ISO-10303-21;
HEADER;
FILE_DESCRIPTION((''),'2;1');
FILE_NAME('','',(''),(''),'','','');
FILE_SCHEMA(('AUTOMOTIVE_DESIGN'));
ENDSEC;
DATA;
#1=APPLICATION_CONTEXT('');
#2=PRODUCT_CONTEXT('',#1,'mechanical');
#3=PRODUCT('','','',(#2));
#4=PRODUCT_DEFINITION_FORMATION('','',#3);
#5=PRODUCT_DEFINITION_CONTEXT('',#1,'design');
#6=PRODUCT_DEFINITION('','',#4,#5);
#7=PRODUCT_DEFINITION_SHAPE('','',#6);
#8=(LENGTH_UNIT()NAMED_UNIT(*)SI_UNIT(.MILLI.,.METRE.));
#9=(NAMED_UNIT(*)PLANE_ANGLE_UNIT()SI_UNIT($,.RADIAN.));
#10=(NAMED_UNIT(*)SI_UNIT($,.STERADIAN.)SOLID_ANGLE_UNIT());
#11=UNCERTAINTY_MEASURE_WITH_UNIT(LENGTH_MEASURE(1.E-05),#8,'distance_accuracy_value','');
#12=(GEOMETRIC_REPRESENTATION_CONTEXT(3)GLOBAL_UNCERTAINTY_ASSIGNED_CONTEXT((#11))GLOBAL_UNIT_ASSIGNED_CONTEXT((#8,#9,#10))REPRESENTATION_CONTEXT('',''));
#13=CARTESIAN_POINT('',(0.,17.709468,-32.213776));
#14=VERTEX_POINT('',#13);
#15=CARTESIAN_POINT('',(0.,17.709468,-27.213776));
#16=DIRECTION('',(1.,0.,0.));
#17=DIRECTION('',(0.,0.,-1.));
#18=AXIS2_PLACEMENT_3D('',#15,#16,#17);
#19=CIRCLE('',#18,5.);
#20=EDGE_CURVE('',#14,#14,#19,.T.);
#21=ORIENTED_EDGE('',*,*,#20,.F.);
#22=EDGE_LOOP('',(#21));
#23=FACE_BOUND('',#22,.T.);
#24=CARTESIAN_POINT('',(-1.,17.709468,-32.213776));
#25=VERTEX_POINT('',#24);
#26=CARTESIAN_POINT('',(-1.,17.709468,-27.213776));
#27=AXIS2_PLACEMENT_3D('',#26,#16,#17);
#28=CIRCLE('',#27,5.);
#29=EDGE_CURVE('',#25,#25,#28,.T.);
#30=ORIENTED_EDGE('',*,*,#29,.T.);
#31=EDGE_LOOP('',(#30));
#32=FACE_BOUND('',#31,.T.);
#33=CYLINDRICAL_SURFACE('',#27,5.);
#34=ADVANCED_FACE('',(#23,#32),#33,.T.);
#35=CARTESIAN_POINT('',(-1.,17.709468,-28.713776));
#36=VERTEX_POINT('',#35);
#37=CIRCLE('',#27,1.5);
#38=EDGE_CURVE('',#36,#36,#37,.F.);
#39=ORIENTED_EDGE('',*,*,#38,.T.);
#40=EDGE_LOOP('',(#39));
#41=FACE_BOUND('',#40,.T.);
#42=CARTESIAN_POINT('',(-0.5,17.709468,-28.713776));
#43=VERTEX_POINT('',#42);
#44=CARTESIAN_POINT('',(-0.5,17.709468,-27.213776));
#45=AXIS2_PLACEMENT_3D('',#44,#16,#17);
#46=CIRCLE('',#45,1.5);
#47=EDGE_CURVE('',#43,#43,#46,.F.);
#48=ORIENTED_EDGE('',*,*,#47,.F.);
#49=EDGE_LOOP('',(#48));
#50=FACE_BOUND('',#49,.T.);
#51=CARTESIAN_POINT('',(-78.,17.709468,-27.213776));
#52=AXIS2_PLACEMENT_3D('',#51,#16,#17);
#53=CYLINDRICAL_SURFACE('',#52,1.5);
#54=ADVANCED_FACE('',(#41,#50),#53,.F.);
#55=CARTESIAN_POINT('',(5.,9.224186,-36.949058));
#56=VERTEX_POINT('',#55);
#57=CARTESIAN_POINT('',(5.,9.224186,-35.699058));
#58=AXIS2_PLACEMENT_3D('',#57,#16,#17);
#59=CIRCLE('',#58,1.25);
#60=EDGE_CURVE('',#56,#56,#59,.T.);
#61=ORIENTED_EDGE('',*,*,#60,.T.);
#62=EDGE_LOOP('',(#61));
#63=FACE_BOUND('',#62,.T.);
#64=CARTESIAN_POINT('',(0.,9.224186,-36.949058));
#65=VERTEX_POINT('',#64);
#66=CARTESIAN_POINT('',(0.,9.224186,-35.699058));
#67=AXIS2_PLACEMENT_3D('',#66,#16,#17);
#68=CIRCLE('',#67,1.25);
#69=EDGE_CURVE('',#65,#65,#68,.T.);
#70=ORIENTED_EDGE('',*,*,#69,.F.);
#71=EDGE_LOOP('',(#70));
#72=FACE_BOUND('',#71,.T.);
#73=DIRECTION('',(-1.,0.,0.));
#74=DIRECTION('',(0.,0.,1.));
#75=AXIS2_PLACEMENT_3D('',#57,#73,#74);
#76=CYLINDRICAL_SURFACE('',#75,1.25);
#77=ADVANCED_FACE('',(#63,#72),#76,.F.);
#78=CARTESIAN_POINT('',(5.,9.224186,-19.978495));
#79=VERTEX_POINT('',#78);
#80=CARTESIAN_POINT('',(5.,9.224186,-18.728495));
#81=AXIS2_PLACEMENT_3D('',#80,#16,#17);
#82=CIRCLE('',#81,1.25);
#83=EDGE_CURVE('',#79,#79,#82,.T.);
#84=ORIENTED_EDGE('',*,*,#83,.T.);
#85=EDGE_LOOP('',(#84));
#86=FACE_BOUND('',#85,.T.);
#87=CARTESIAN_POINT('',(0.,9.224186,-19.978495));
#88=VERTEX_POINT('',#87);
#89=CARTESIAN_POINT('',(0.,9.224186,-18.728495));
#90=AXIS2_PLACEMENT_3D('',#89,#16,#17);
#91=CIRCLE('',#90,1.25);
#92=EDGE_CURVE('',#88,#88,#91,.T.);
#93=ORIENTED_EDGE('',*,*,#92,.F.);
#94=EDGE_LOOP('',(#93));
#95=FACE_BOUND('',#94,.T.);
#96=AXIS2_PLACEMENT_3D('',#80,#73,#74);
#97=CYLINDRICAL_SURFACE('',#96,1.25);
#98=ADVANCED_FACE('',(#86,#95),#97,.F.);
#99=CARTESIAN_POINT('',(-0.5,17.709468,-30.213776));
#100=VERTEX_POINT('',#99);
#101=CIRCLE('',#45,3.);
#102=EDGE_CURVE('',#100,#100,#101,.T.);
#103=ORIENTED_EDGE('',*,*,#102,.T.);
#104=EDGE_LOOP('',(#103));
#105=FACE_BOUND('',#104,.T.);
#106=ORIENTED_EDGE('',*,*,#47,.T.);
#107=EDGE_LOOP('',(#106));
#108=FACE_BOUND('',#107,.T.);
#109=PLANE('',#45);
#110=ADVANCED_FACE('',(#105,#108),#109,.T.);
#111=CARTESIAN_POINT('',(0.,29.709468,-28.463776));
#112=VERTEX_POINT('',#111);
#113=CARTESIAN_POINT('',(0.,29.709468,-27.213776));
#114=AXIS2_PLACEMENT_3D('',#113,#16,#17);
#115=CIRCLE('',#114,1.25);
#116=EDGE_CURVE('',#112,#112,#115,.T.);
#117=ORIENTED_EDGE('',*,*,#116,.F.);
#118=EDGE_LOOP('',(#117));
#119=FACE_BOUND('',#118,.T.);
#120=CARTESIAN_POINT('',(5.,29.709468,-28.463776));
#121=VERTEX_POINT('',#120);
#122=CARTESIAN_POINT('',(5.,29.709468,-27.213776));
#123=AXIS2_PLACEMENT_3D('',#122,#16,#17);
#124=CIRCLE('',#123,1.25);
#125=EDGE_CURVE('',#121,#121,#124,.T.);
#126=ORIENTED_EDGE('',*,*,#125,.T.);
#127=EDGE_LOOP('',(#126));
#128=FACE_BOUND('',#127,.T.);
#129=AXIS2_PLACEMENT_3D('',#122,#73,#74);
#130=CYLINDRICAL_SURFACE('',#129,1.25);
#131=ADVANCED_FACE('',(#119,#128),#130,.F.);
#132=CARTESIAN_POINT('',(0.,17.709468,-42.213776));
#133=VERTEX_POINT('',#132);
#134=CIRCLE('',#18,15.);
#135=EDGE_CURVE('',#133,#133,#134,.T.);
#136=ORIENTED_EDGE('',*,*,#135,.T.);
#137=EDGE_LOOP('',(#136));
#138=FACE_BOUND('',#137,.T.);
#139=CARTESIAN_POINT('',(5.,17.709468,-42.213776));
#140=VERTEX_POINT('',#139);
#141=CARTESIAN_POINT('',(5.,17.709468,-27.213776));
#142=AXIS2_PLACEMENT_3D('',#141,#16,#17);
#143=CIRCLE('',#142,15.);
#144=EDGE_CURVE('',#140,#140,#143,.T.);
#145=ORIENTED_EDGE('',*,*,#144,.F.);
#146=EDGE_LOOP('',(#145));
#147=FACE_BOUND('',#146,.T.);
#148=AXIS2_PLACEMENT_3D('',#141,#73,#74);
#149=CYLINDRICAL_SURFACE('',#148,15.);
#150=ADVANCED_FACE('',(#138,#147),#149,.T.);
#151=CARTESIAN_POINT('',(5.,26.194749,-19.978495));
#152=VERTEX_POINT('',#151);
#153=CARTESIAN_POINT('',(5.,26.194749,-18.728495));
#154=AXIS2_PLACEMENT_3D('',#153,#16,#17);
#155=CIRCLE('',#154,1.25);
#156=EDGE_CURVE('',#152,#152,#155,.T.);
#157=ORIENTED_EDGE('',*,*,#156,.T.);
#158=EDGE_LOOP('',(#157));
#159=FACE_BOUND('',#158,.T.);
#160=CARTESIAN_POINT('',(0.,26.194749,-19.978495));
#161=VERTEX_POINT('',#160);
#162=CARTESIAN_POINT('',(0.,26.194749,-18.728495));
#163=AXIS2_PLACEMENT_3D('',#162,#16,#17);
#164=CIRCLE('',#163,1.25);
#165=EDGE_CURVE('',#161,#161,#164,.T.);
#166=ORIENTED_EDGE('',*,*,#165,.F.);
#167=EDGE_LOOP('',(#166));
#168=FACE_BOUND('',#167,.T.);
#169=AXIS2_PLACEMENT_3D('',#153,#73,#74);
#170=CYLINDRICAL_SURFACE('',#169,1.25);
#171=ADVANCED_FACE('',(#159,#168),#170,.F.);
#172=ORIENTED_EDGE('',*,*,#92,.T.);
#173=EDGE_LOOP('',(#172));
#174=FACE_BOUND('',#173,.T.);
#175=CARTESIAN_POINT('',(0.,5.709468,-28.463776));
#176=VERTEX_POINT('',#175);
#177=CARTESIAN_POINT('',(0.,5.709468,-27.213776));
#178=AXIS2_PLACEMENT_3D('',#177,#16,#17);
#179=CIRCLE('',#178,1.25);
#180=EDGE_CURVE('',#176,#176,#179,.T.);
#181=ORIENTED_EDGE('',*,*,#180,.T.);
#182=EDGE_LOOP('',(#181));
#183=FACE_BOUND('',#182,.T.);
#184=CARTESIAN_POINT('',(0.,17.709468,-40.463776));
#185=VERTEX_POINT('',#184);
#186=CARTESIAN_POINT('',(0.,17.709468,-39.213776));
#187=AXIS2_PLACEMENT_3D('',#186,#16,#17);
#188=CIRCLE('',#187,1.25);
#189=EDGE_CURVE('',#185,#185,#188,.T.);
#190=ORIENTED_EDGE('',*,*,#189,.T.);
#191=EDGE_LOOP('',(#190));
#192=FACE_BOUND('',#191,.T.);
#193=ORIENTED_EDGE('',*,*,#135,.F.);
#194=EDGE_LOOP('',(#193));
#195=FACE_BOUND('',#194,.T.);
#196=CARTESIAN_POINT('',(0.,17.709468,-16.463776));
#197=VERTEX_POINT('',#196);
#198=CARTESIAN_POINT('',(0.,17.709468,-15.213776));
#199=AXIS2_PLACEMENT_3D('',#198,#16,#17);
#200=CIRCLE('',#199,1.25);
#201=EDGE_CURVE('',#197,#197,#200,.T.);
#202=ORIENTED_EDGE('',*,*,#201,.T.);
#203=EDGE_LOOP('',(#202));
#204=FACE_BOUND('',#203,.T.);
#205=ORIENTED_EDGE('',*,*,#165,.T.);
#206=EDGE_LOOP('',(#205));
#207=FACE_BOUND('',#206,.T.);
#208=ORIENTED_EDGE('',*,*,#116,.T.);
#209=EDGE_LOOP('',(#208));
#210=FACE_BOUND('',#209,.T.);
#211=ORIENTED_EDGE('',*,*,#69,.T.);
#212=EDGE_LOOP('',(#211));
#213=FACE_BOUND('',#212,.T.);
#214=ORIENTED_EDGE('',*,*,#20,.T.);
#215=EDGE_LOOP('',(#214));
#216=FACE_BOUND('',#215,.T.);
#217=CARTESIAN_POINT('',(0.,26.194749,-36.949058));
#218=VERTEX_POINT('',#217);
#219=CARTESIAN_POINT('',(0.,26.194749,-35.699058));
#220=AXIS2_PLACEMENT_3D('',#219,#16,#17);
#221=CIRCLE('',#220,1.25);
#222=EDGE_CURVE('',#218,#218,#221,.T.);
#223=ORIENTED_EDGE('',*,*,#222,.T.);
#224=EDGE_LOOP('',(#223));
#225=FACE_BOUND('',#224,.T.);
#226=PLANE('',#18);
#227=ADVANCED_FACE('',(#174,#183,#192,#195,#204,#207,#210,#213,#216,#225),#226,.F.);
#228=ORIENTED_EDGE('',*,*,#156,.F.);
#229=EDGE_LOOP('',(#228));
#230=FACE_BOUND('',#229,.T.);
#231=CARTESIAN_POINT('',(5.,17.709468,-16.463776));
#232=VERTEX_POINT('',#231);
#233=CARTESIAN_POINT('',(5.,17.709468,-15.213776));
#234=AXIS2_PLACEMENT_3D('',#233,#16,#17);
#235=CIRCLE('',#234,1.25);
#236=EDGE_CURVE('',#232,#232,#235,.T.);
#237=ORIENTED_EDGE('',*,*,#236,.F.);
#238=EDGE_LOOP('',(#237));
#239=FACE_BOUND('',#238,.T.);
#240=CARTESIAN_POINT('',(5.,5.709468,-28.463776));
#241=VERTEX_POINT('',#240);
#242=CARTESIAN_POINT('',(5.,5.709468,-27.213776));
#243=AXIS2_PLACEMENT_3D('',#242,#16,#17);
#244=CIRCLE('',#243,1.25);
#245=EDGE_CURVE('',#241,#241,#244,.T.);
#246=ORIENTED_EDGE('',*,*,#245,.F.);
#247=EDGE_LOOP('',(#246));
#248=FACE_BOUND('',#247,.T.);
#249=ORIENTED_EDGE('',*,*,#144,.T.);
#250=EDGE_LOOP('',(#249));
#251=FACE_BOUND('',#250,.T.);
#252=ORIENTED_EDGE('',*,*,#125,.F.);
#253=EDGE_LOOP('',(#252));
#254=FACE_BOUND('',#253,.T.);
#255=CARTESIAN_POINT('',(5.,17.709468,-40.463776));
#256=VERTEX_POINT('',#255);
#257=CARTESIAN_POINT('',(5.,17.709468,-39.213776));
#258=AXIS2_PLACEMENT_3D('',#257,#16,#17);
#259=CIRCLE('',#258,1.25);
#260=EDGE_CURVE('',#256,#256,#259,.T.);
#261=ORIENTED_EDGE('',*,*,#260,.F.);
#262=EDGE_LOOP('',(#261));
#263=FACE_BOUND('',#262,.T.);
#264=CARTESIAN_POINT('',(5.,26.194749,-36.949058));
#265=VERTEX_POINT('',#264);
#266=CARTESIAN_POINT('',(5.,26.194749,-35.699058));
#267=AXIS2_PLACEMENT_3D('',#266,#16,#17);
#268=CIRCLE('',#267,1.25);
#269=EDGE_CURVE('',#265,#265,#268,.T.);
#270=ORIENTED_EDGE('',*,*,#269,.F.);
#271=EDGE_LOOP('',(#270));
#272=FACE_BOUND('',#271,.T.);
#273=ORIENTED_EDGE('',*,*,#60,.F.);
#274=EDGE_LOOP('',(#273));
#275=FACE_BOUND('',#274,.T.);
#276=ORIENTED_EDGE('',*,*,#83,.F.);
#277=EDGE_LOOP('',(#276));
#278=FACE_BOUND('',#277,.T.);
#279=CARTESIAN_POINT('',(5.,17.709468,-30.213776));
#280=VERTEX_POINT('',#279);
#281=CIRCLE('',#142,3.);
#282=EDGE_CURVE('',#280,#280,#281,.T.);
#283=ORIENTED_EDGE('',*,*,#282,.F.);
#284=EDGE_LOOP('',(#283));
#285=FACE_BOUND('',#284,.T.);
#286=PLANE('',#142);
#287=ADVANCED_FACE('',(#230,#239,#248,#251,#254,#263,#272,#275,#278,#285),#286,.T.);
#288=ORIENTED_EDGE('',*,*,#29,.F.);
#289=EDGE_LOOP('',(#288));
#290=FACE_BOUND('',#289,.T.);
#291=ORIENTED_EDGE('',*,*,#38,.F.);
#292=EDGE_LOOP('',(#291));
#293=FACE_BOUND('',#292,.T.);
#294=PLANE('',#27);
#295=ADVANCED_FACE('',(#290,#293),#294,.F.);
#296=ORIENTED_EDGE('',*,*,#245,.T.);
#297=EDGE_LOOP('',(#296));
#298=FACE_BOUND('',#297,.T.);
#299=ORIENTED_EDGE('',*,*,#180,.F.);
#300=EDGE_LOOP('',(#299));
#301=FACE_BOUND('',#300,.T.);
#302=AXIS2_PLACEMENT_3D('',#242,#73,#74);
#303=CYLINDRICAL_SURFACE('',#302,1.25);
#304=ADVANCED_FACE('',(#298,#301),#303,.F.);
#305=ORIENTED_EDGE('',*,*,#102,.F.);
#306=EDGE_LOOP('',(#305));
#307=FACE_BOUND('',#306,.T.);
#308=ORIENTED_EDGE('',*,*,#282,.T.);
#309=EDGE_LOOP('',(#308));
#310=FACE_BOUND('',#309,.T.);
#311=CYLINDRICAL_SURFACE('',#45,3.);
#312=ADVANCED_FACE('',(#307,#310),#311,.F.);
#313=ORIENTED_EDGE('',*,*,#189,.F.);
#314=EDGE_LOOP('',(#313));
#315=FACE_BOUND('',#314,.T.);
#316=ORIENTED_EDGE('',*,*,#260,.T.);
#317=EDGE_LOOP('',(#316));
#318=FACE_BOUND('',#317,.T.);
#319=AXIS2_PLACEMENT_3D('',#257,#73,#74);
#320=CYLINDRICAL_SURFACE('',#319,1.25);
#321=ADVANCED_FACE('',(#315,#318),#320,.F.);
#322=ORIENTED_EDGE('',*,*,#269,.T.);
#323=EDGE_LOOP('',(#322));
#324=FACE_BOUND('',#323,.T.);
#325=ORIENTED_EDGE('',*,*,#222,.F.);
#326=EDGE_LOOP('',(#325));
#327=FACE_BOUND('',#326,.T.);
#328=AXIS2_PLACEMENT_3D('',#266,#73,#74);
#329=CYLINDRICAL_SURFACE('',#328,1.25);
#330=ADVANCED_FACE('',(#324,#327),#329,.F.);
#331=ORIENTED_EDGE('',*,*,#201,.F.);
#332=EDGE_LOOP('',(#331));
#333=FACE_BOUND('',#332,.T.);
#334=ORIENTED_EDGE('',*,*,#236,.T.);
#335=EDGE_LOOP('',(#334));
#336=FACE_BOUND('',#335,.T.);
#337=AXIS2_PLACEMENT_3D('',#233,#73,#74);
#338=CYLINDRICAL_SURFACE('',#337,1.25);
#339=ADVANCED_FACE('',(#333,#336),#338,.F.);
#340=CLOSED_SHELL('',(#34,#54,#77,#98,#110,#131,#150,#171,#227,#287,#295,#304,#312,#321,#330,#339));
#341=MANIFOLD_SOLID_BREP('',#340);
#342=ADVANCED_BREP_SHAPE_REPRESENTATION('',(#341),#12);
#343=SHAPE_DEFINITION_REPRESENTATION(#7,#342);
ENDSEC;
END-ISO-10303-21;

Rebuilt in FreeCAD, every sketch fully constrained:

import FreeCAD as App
import Part
import Sketcher

V = App.Vector

doc = App.newDocument("Part")
params = doc.addObject("Spreadsheet::Sheet", "Params")
for row, (alias, value) in enumerate([
    ("sketch1_diameter", "30 mm"),
    ("sketch1_diameter2", "2.5 mm"),
    ("pad1_length", "5 mm"),
    ("sketch2_diameter", "10 mm"),
    ("pad2_length", "1 mm"),
    ("sketch3_diameter", "6 mm"),
    ("pocket1_length", "5.5 mm"),
    ("sketch4_diameter", "3 mm"),
], start=1):
    params.set(f"A{row}", alias)
    params.set(f"B{row}", "=" + value)
    params.setAlias(f"B{row}", alias)

body = doc.addObject("PartDesign::Body", "Body")

# Sketch on YZ plane
sketch1 = body.newObject("Sketcher::SketchObject", "Sketch")
sketch1.AttachmentSupport = (doc.getObject("YZ_Plane"), [""])
sketch1.MapMode = "FlatFace"
sketch1.addGeometry(Part.Circle(V(17.7, -27.2, 0), V(0, 0, 1), 15), False)
sketch1.addGeometry(Part.Circle(V(9.2, -18.7, 0), V(0, 0, 1), 1.2), False)
sketch1.addGeometry(Part.Circle(V(5.7, -27.2, 0), V(0, 0, 1), 1.2), False)
sketch1.addGeometry(Part.Circle(V(9.2, -35.7, 0), V(0, 0, 1), 1.2), False)
sketch1.addGeometry(Part.Circle(V(17.7, -15.2, 0), V(0, 0, 1), 1.2), False)
sketch1.addGeometry(Part.Circle(V(26.2, -18.7, 0), V(0, 0, 1), 1.2), False)
sketch1.addGeometry(Part.Circle(V(29.7, -27.2, 0), V(0, 0, 1), 1.2), False)
sketch1.addGeometry(Part.Circle(V(17.7, -39.2, 0), V(0, 0, 1), 1.2), False)
sketch1.addGeometry(Part.Circle(V(26.2, -35.7, 0), V(0, 0, 1), 1.2), False)
sketch1.addConstraint(Sketcher.Constraint("Equal", 1, 2))
sketch1.addConstraint(Sketcher.Constraint("Equal", 2, 3))
sketch1.addConstraint(Sketcher.Constraint("Equal", 3, 4))
sketch1.addConstraint(Sketcher.Constraint("Equal", 4, 5))
sketch1.addConstraint(Sketcher.Constraint("Equal", 5, 6))
sketch1.addConstraint(Sketcher.Constraint("Equal", 6, 7))
sketch1.addConstraint(Sketcher.Constraint("Equal", 7, 8))
sketch1.addConstraint(Sketcher.Constraint("Horizontal", 0, 3, 2, 3))
sketch1.addConstraint(Sketcher.Constraint("Horizontal", 1, 3, 5, 3))
sketch1.addConstraint(Sketcher.Constraint("Horizontal", 2, 3, 6, 3))
sketch1.addConstraint(Sketcher.Constraint("Horizontal", 3, 3, 8, 3))
sketch1.addConstraint(Sketcher.Constraint("Vertical", 1, 3, 3, 3))
sketch1.addConstraint(Sketcher.Constraint("Vertical", 0, 3, 4, 3))
sketch1.addConstraint(Sketcher.Constraint("Vertical", 4, 3, 7, 3))
sketch1.addConstraint(Sketcher.Constraint("Vertical", 5, 3, 8, 3))
sketch1.addConstraint(Sketcher.Constraint("Diameter", 0, 30.0))
sketch1.addConstraint(Sketcher.Constraint("Diameter", 1, 2.5))
sketch1.addConstraint(Sketcher.Constraint("DistanceX", 2, 3, 0, 3, 12.0))
sketch1.addConstraint(Sketcher.Constraint("DistanceY", 0, 3, 4, 3, 12.0))
sketch1.addConstraint(Sketcher.Constraint("DistanceX", 0, 3, 6, 3, 12.0))
sketch1.addConstraint(Sketcher.Constraint("DistanceY", 7, 3, 0, 3, 12.0))
sketch1.addConstraint(Sketcher.Constraint("DistanceX", -1, 1, 5, 3, 26.194749))
sketch1.addConstraint(Sketcher.Constraint("DistanceX", 1, 3, 0, 3, 8.485281))
sketch1.addConstraint(Sketcher.Constraint("DistanceY", 0, 3, 1, 3, 8.485281))
sketch1.addConstraint(Sketcher.Constraint("DistanceY", 3, 3, 2, 3, 8.485281))
sketch1.addConstraint(Sketcher.Constraint("DistanceX", 4, 3, 5, 3, 8.485281))
sketch1.addConstraint(Sketcher.Constraint("DistanceY", 0, 3, -1, 1, 27.213776))
sketch1.setExpression("Constraints[15]", "Params.sketch1_diameter")
sketch1.setExpression("Constraints[16]", "Params.sketch1_diameter2")
pad1 = body.newObject("PartDesign::Pad", "Pad")
pad1.Profile = sketch1
pad1.setExpression("Length", "Params.pad1_length")

# Sketch on YZ plane
sketch2 = body.newObject("Sketcher::SketchObject", "Sketch001")
sketch2.AttachmentSupport = (doc.getObject("YZ_Plane"), [""])
sketch2.MapMode = "FlatFace"
sketch2.addGeometry(Part.Circle(V(18, -27, 0), V(0, 0, 1), 5), False)
sketch2.addConstraint(Sketcher.Constraint("Diameter", 0, 10.0))
sketch2.addConstraint(Sketcher.Constraint("DistanceX", -1, 1, 0, 3, 17.709468))
sketch2.addConstraint(Sketcher.Constraint("DistanceY", 0, 3, -1, 1, 27.213776))
sketch2.setExpression("Constraints[0]", "Params.sketch2_diameter")
pad2 = body.newObject("PartDesign::Pad", "Pad001")
pad2.Profile = sketch2
pad2.setExpression("Length", "Params.pad2_length")
pad2.Reversed = True

# Sketch on YZ plane
sketch3 = body.newObject("Sketcher::SketchObject", "Sketch002")
sketch3.AttachmentSupport = (doc.getObject("YZ_Plane"), [""])
sketch3.MapMode = "FlatFace"
sketch3.AttachmentOffset = App.Placement(V(0, 0, 5), App.Rotation())
sketch3.addGeometry(Part.Circle(V(17.7, -27.2, 0), V(0, 0, 1), 3), False)
sketch3.addConstraint(Sketcher.Constraint("Diameter", 0, 6.0))
sketch3.addConstraint(Sketcher.Constraint("DistanceX", -1, 1, 0, 3, 17.709468))
sketch3.addConstraint(Sketcher.Constraint("DistanceY", 0, 3, -1, 1, 27.213776))
sketch3.setExpression("Constraints[0]", "Params.sketch3_diameter")
pocket1 = body.newObject("PartDesign::Pocket", "Pocket")
pocket1.Profile = sketch3
pocket1.setExpression("Length", "Params.pocket1_length")

# Sketch on YZ plane
sketch4 = body.newObject("Sketcher::SketchObject", "Sketch003")
sketch4.AttachmentSupport = (doc.getObject("YZ_Plane"), [""])
sketch4.MapMode = "FlatFace"
sketch4.addGeometry(Part.Circle(V(17.7, -27.2, 0), V(0, 0, 1), 1.5), False)
sketch4.addConstraint(Sketcher.Constraint("Diameter", 0, 3.0))
sketch4.addConstraint(Sketcher.Constraint("DistanceX", -1, 1, 0, 3, 17.709468))
sketch4.addConstraint(Sketcher.Constraint("DistanceY", 0, 3, -1, 1, 27.213776))
sketch4.setExpression("Constraints[0]", "Params.sketch4_diameter")
pocket2 = body.newObject("PartDesign::Pocket", "Pocket001")
pocket2.Profile = sketch4
pocket2.Type = "ThroughAll"
pocket2.Midplane = True

doc.recompute()
